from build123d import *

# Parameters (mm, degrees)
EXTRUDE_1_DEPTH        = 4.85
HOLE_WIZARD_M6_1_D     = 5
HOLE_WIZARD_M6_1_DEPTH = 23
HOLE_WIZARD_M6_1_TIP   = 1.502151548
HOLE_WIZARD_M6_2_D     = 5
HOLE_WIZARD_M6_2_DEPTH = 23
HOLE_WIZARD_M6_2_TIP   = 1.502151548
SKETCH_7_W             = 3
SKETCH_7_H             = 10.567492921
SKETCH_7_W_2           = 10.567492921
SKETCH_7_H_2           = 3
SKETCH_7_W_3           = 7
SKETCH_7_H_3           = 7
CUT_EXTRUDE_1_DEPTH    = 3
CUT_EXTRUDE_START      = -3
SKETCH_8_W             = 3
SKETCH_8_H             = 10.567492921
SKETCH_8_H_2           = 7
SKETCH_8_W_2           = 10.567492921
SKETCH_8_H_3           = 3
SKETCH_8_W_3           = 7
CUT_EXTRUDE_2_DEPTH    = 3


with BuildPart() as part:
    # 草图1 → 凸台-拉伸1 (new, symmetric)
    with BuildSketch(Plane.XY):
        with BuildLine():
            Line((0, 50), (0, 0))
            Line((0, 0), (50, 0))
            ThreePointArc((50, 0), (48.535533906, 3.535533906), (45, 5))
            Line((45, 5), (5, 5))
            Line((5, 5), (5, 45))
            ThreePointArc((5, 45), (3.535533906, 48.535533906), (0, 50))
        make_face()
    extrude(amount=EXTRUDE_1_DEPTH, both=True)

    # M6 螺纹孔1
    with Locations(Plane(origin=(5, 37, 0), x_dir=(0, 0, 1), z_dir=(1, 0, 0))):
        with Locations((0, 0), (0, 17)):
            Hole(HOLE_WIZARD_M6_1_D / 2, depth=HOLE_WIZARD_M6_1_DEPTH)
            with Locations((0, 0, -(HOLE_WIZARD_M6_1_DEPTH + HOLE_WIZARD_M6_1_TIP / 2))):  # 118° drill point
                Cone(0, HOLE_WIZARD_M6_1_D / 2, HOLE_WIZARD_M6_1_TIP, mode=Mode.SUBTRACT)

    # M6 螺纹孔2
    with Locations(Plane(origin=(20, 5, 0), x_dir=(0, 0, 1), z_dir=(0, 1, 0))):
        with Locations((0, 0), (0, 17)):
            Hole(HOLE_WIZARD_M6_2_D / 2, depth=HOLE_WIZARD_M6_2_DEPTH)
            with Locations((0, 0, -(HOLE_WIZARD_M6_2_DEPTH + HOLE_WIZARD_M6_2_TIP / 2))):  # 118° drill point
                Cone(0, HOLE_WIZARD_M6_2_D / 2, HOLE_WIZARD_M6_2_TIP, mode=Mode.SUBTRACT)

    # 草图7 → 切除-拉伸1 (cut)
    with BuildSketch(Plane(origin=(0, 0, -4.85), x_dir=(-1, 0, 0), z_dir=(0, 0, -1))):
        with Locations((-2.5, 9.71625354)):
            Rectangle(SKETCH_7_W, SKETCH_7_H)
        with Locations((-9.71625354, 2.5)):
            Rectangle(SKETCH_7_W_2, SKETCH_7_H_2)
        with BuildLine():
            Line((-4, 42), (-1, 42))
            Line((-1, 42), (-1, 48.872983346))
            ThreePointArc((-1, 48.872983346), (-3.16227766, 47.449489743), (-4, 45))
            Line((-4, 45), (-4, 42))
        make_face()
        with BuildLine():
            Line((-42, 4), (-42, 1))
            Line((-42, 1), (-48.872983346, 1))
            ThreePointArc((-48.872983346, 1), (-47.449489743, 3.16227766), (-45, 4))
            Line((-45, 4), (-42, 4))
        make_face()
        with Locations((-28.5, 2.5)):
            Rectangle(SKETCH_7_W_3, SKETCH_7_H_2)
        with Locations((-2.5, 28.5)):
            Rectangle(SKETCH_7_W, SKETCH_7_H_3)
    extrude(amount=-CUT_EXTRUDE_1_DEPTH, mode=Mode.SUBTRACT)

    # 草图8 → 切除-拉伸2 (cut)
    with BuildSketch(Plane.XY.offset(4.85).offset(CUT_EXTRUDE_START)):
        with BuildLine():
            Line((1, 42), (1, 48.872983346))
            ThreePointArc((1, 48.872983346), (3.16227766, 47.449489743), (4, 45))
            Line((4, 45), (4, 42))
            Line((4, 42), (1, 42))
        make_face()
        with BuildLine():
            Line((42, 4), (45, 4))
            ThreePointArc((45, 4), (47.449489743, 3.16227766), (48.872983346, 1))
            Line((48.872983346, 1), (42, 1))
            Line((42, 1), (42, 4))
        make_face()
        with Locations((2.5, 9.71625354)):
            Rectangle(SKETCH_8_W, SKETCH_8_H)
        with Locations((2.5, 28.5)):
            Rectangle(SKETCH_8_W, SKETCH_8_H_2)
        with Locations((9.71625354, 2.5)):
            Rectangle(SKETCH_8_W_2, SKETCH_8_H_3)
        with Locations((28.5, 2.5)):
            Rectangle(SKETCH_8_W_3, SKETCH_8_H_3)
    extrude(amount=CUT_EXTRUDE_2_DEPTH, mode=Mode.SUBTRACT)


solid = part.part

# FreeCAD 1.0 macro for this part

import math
import FreeCAD as App
import Part
import Sketcher

V = App.Vector

doc = App.newDocument("Part")
params = doc.addObject("Spreadsheet::Sheet", "Params")
for row, (alias, value) in enumerate([
    ("sketch1_radius", "5 mm"),
    ("sketch1_width", "50 mm"),
    ("pad1_length", "9.7 mm"),
    ("sketch2_diameter", "5 mm"),
    ("hole_diameter", "5 mm"),
    ("hole_depth", "23 mm"),
    ("sketch3_diameter", "5 mm"),
    ("hole2_diameter", "5 mm"),
    ("hole2_depth", "23 mm"),
    ("sketch4_radius", "4 mm"),
    ("sketch4_width", "3 mm"),
    ("sketch4_width2", "7 mm"),
    ("pocket1_length", "3 mm"),
    ("sketch5_radius", "4 mm"),
    ("sketch5_width", "3 mm"),
    ("sketch5_width2", "7 mm"),
    ("pocket2_length", "3 mm"),
], start=1):
    params.set(f"A{row}", alias)
    params.set(f"B{row}", "=" + value)
    params.setAlias(f"B{row}", alias)

body = doc.addObject("PartDesign::Body", "Body")

# Sketch on XY plane
sketch1 = body.newObject("Sketcher::SketchObject", "Sketch")
sketch1.AttachmentSupport = (doc.getObject("XY_Plane"), [""])
sketch1.MapMode = "FlatFace"
sketch1.addGeometry(Part.LineSegment(V(0, 50, 0), V(0, 0, 0)), False)
sketch1.addGeometry(Part.LineSegment(V(0, 0, 0), V(50, 0, 0)), False)
sketch1.addGeometry(Part.ArcOfCircle(Part.Circle(V(45, 0, 0), V(0, 0, 1), 5), math.radians(0), math.radians(90)), False)
sketch1.addGeometry(Part.LineSegment(V(45, 5, 0), V(5, 5, 0)), False)
sketch1.addGeometry(Part.LineSegment(V(5, 5, 0), V(5, 45, 0)), False)
sketch1.addGeometry(Part.ArcOfCircle(Part.Circle(V(0, 45, 0), V(0, 0, 1), 5), math.radians(0), math.radians(90)), False)
sketch1.addConstraint(Sketcher.Constraint("Coincident", 0, 2, 1, 1))
sketch1.addConstraint(Sketcher.Constraint("Coincident", 1, 2, 2, 1))
sketch1.addConstraint(Sketcher.Constraint("Tangent", 2, 2, 3, 1))
sketch1.addConstraint(Sketcher.Constraint("Coincident", 3, 2, 4, 1))
sketch1.addConstraint(Sketcher.Constraint("Tangent", 4, 2, 5, 1))
sketch1.addConstraint(Sketcher.Constraint("Coincident", 5, 2, 0, 1))
sketch1.addConstraint(Sketcher.Constraint("Vertical", 0))
sketch1.addConstraint(Sketcher.Constraint("Horizontal", 1))
sketch1.addConstraint(Sketcher.Constraint("Horizontal", 3))
sketch1.addConstraint(Sketcher.Constraint("Vertical", 4))
sketch1.addConstraint(Sketcher.Constraint("Coincident", 0, 2, -1, 1))
sketch1.addConstraint(Sketcher.Constraint("Equal", 2, 5))
sketch1.addConstraint(Sketcher.Constraint("PointOnObject", 2, 3, -1))
sketch1.addConstraint(Sketcher.Constraint("PointOnObject", 5, 3, -2))
sketch1.addConstraint(Sketcher.Constraint("Equal", 1, 0))
sketch1.addConstraint(Sketcher.Constraint("Radius", 2, 5.0))
sketch1.addConstraint(Sketcher.Constraint("DistanceX", 1, 1, 1, 2, 50.0))
sketch1.setExpression("Constraints[15]", "Params.sketch1_radius")
sketch1.setExpression("Constraints[16]", "Params.sketch1_width")
pad1 = body.newObject("PartDesign::Pad", "Pad")
pad1.Profile = sketch1
pad1.setExpression("Length", "Params.pad1_length")
pad1.Midplane = True

# Sketch on YZ plane
sketch2 = body.newObject("Sketcher::SketchObject", "Sketch001")
sketch2.AttachmentSupport = (doc.getObject("YZ_Plane"), [""])
sketch2.MapMode = "FlatFace"
sketch2.AttachmentOffset = App.Placement(V(0, 0, 5), App.Rotation())
sketch2.addGeometry(Part.Circle(V(37, 0, 0), V(0, 0, 1), 2.5), False)
sketch2.addGeometry(Part.Circle(V(20, 0, 0), V(0, 0, 1), 2.5), False)
sketch2.addConstraint(Sketcher.Constraint("Equal", 0, 1))
sketch2.addConstraint(Sketcher.Constraint("PointOnObject", 0, 3, -1))
sketch2.addConstraint(Sketcher.Constraint("PointOnObject", 1, 3, -1))
sketch2.addConstraint(Sketcher.Constraint("Diameter", 0, 5.0))
sketch2.addConstraint(Sketcher.Constraint("DistanceX", -1, 1, 0, 3, 37.0))
sketch2.addConstraint(Sketcher.Constraint("DistanceX", -1, 1, 1, 3, 20.0))
sketch2.setExpression("Constraints[3]", "Params.sketch2_diameter")
doc.recompute()
hole = body.newObject("PartDesign::Hole", "Hole")
hole.Profile = sketch2
hole.ThreadType = "None"
hole.setExpression("Diameter", "Params.hole_diameter")
hole.DepthType = "Dimension"
hole.setExpression("Depth", "Params.hole_depth")
hole.DrillPoint = "Angled"
hole.DrillPointAngle = 118

# Sketch on XZ plane
sketch3 = body.newObject("Sketcher::SketchObject", "Sketch002")
sketch3.AttachmentSupport = (doc.getObject("XZ_Plane"), [""])
sketch3.MapMode = "FlatFace"
sketch3.AttachmentOffset = App.Placement(V(0, 0, -5), App.Rotation())
sketch3.addGeometry(Part.Circle(V(20, 0, 0), V(0, 0, 1), 2.5), False)
sketch3.addGeometry(Part.Circle(V(37, 0, 0), V(0, 0, 1), 2.5), False)
sketch3.addConstraint(Sketcher.Constraint("Equal", 0, 1))
sketch3.addConstraint(Sketcher.Constraint("PointOnObject", 0, 3, -1))
sketch3.addConstraint(Sketcher.Constraint("PointOnObject", 1, 3, -1))
sketch3.addConstraint(Sketcher.Constraint("Diameter", 0, 5.0))
sketch3.addConstraint(Sketcher.Constraint("DistanceX", -1, 1, 0, 3, 20.0))
sketch3.addConstraint(Sketcher.Constraint("DistanceX", -1, 1, 1, 3, 37.0))
sketch3.setExpression("Constraints[3]", "Params.sketch3_diameter")
doc.recompute()
hole2 = body.newObject("PartDesign::Hole", "Hole001")
hole2.Profile = sketch3
hole2.ThreadType = "None"
hole2.setExpression("Diameter", "Params.hole2_diameter")
hole2.DepthType = "Dimension"
hole2.setExpression("Depth", "Params.hole2_depth")
hole2.DrillPoint = "Angled"
hole2.DrillPointAngle = 118
hole2.Reversed = True

# Sketch on XY plane
sketch4 = body.newObject("Sketcher::SketchObject", "Sketch003")
sketch4.AttachmentSupport = (doc.getObject("XY_Plane"), [""])
sketch4.MapMode = "FlatFace"
sketch4.AttachmentOffset = App.Placement(V(0, 0, -4.85), App.Rotation())
sketch4.addGeometry(Part.LineSegment(V(4, 15, 0), V(4, 4.432507, 0)), False)
sketch4.addGeometry(Part.LineSegment(V(4, 4.432507, 0), V(1, 4.432507, 0)), False)
sketch4.addGeometry(Part.LineSegment(V(1, 4.432507, 0), V(1, 15, 0)), False)
sketch4.addGeometry(Part.LineSegment(V(1, 15, 0), V(4, 15, 0)), False)
sketch4.addGeometry(Part.LineSegment(V(15, 4, 0), V(15, 1, 0)), False)
sketch4.addGeometry(Part.LineSegment(V(15, 1, 0), V(4.432507, 1, 0)), False)
sketch4.addGeometry(Part.LineSegment(V(4.432507, 1, 0), V(4.432507, 4, 0)), False)
sketch4.addGeometry(Part.LineSegment(V(4.432507, 4, 0), V(15, 4, 0)), False)
sketch4.addGeometry(Part.LineSegment(V(4, 42, 0), V(1, 42, 0)), False)
sketch4.addGeometry(Part.LineSegment(V(1, 42, 0), V(1, 48.872983, 0)), False)
sketch4.addGeometry(Part.ArcOfCircle(Part.Circle(V(0, 45, 0), V(0, 0, 1), 4), math.radians(0), math.radians(75.522488)), False)
sketch4.addGeometry(Part.LineSegment(V(4, 45, 0), V(4, 42, 0)), False)
sketch4.addGeometry(Part.LineSegment(V(42, 1, 0), V(42, 4, 0)), False)
sketch4.addGeometry(Part.LineSegment(V(42, 4, 0), V(45, 4, 0)), False)
sketch4.addGeometry(Part.ArcOfCircle(Part.Circle(V(45, 0, 0), V(0, 0, 1), 4), math.radians(14.477512), math.radians(90)), False)
sketch4.addGeometry(Part.LineSegment(V(48.872983, 1, 0), V(42, 1, 0)), False)
sketch4.addGeometry(Part.LineSegment(V(32, 4, 0), V(32, 1, 0)), False)
sketch4.addGeometry(Part.LineSegment(V(32, 1, 0), V(25, 1, 0)), False)
sketch4.addGeometry(Part.LineSegment(V(25, 1, 0), V(25, 4, 0)), False)
sketch4.addGeometry(Part.LineSegment(V(25, 4, 0), V(32, 4, 0)), False)
sketch4.addGeometry(Part.LineSegment(V(4, 32, 0), V(4, 25, 0)), False)
sketch4.addGeometry(Part.LineSegment(V(4, 25, 0), V(1, 25, 0)), False)
sketch4.addGeometry(Part.LineSegment(V(1, 25, 0), V(1, 32, 0)), False)
sketch4.addGeometry(Part.LineSegment(V(1, 32, 0), V(4, 32, 0)), False)
sketch4.addConstraint(Sketcher.Constraint("Coincident", 0, 2, 1, 1))
sketch4.addConstraint(Sketcher.Constraint("Coincident", 1, 2, 2, 1))
sketch4.addConstraint(Sketcher.Constraint("Coincident", 2, 2, 3, 1))
sketch4.addConstraint(Sketcher.Constraint("Coincident", 3, 2, 0, 1))
sketch4.addConstraint(Sketcher.Constraint("Coincident", 4, 2, 5, 1))
sketch4.addConstraint(Sketcher.Constraint("Coincident", 5, 2, 6, 1))
sketch4.addConstraint(Sketcher.Constraint("Coincident", 6, 2, 7, 1))
sketch4.addConstraint(Sketcher.Constraint("Coincident", 7, 2, 4, 1))
sketch4.addConstraint(Sketcher.Constraint("Coincident", 8, 2, 9, 1))
sketch4.addConstraint(Sketcher.Constraint("Coincident", 9, 2, 10, 2))
sketch4.addConstraint(Sketcher.Constraint("Tangent", 10, 1, 11, 1))
sketch4.addConstraint(Sketcher.Constraint("Coincident", 11, 2, 8, 1))
sketch4.addConstraint(Sketcher.Constraint("Coincident", 12, 2, 13, 1))
sketch4.addConstraint(Sketcher.Constraint("Tangent", 13, 2, 14, 2))
sketch4.addConstraint(Sketcher.Constraint("Coincident", 14, 1, 15, 1))
sketch4.addConstraint(Sketcher.Constraint("Coincident", 15, 2, 12, 1))
sketch4.addConstraint(Sketcher.Constraint("Coincident", 16, 2, 17, 1))
sketch4.addConstraint(Sketcher.Constraint("Coincident", 17, 2, 18, 1))
sketch4.addConstraint(Sketcher.Constraint("Coincident", 18, 2, 19, 1))
sketch4.addConstraint(Sketcher.Constraint("Coincident", 19, 2, 16, 1))
sketch4.addConstraint(Sketcher.Constraint("Coincident", 20, 2, 21, 1))
sketch4.addConstraint(Sketcher.Constraint("Coincident", 21, 2, 22, 1))
sketch4.addConstraint(Sketcher.Constraint("Coincident", 22, 2, 23, 1))
sketch4.addConstraint(Sketcher.Constraint("Coincident", 23, 2, 20, 1))
sketch4.addConstraint(Sketcher.Constraint("Vertical", 0))
sketch4.addConstraint(Sketcher.Constraint("Horizontal", 1))
sketch4.addConstraint(Sketcher.Constraint("Vertical", 2))
sketch4.addConstraint(Sketcher.Constraint("Horizontal", 3))
sketch4.addConstraint(Sketcher.Constraint("Vertical", 4))
sketch4.addConstraint(Sketcher.Constraint("Horizontal", 5))
sketch4.addConstraint(Sketcher.Constraint("Vertical", 6))
sketch4.addConstraint(Sketcher.Constraint("Horizontal", 7))
sketch4.addConstraint(Sketcher.Constraint("Horizontal", 8))
sketch4.addConstraint(Sketcher.Constraint("Vertical", 9))
sketch4.addConstraint(Sketcher.Constraint("Vertical", 11))
sketch4.addConstraint(Sketcher.Constraint("Vertical", 12))
sketch4.addConstraint(Sketcher.Constraint("Horizontal", 13))
sketch4.addConstraint(Sketcher.Constraint("Horizontal", 15))
sketch4.addConstraint(Sketcher.Constraint("Vertical", 16))
sketch4.addConstraint(Sketcher.Constraint("Horizontal", 17))
sketch4.addConstraint(Sketcher.Constraint("Vertical", 18))
sketch4.addConstraint(Sketcher.Constraint("Horizontal", 19))
sketch4.addConstraint(Sketcher.Constraint("Vertical", 20))
sketch4.addConstraint(Sketcher.Constraint("Horizontal", 21))
sketch4.addConstraint(Sketcher.Constraint("Vertical", 22))
sketch4.addConstraint(Sketcher.Constraint("Horizontal", 23))
sketch4.addConstraint(Sketcher.Constraint("Equal", 10, 14))
sketch4.addConstraint(Sketcher.Constraint("PointOnObject", 10, 3, -2))
sketch4.addConstraint(Sketcher.Constraint("PointOnObject", 14, 3, -1))
sketch4.addConstraint(Sketcher.Constraint("Horizontal", 7, 2, 12, 2))
sketch4.addConstraint(Sketcher.Constraint("Horizontal", 5, 2, 14, 1))
sketch4.addConstraint(Sketcher.Constraint("Horizontal", 15, 2, 16, 2))
sketch4.addConstraint(Sketcher.Constraint("Horizontal", 13, 2, 18, 2))
sketch4.addConstraint(Sketcher.Constraint("Vertical", 2, 2, 8, 2))
sketch4.addConstraint(Sketcher.Constraint("Vertical", 3, 2, 10, 1))
sketch4.addConstraint(Sketcher.Constraint("Vertical", 11, 2, 20, 2))
sketch4.addConstraint(Sketcher.Constraint("Vertical", 9, 2, 21, 2))
sketch4.addConstraint(Sketcher.Constraint("Equal", 8, 13))
sketch4.addConstraint(Sketcher.Constraint("Equal", 7, 0))
sketch4.addConstraint(Sketcher.Constraint("Equal", 23, 4))
sketch4.addConstraint(Sketcher.Constraint("Equal", 15, 9))
sketch4.addConstraint(Sketcher.Constraint("Equal", 19, 20))
sketch4.addConstraint(Sketcher.Constraint("Radius", 10, 4.0))
sketch4.addConstraint(Sketcher.Constraint("DistanceX", 1, 2, 1, 1, 3.0))
sketch4.addConstraint(Sketcher.Constraint("DistanceX", 17, 2, 17, 1, 7.0))
sketch4.addConstraint(Sketcher.Constraint("DistanceY", -1, 1, 10, 3, 45.0))
sketch4.addConstraint(Sketcher.Constraint("DistanceX", -1, 1, 14, 3, 45.0))
sketch4.addConstraint(Sketcher.Constraint("DistanceY", -1, 1, 2, 2, 15.0))
sketch4.addConstraint(Sketcher.Constraint("DistanceX", -1, 1, 4, 2, 15.0))
sketch4.addConstraint(Sketcher.Constraint("DistanceX", -1, 1, 16, 2, 32.0))
sketch4.addConstraint(Sketcher.Constraint("DistanceY", -1, 1, 20, 2, 25.0))
sketch4.addConstraint(Sketcher.Constraint("DistanceX", 5, 2, 5, 1, 10.567493))
sketch4.setExpression("Constraints[62]", "Params.sketch4_radius")
sketch4.setExpression("Constraints[63]", "Params.sketch4_width")
sketch4.setExpression("Constraints[64]", "Params.sketch4_width2")
pocket1 = body.newObject("PartDesign::Pocket", "Pocket")
pocket1.Profile = sketch4
pocket1.setExpression("Length", "Params.pocket1_length")
pocket1.Reversed = True

# Sketch on XY plane
sketch5 = body.newObject("Sketcher::SketchObject", "Sketch004")
sketch5.AttachmentSupport = (doc.getObject("XY_Plane"), [""])
sketch5.MapMode = "FlatFace"
sketch5.AttachmentOffset = App.Placement(V(0, 0, 1.85), App.Rotation())
sketch5.addGeometry(Part.LineSegment(V(1, 48.872983, 0), V(1, 42, 0)), False)
sketch5.addGeometry(Part.LineSegment(V(1, 42, 0), V(4, 42, 0)), False)
sketch5.addGeometry(Part.LineSegment(V(4, 42, 0), V(4, 45, 0)), False)
sketch5.addGeometry(Part.ArcOfCircle(Part.Circle(V(0, 45, 0), V(0, 0, 1), 4), math.radians(0), math.radians(75.522488)), False)
sketch5.addGeometry(Part.LineSegment(V(45, 4, 0), V(42, 4, 0)), False)
sketch5.addGeometry(Part.LineSegment(V(42, 4, 0), V(42, 1, 0)), False)
sketch5.addGeometry(Part.LineSegment(V(42, 1, 0), V(48.872983, 1, 0)), False)
sketch5.addGeometry(Part.ArcOfCircle(Part.Circle(V(45, 0, 0), V(0, 0, 1), 4), math.radians(14.477512), math.radians(90)), False)
sketch5.addGeometry(Part.LineSegment(V(1, 15, 0), V(1, 4.432507, 0)), False)
sketch5.addGeometry(Part.LineSegment(V(1, 4.432507, 0), V(4, 4.432507, 0)), False)
sketch5.addGeometry(Part.LineSegment(V(4, 4.432507, 0), V(4, 15, 0)), False)
sketch5.addGeometry(Part.LineSegment(V(4, 15, 0), V(1, 15, 0)), False)
sketch5.addGeometry(Part.LineSegment(V(1, 32, 0), V(1, 25, 0)), False)
sketch5.addGeometry(Part.LineSegment(V(1, 25, 0), V(4, 25, 0)), False)
sketch5.addGeometry(Part.LineSegment(V(4, 25, 0), V(4, 32, 0)), False)
sketch5.addGeometry(Part.LineSegment(V(4, 32, 0), V(1, 32, 0)), False)
sketch5.addGeometry(Part.LineSegment(V(4.432507, 4, 0), V(4.432507, 1, 0)), False)
sketch5.addGeometry(Part.LineSegment(V(4.432507, 1, 0), V(15, 1, 0)), False)
sketch5.addGeometry(Part.LineSegment(V(15, 1, 0), V(15, 4, 0)), False)
sketch5.addGeometry(Part.LineSegment(V(15, 4, 0), V(4.432507, 4, 0)), False)
sketch5.addGeometry(Part.LineSegment(V(25, 4, 0), V(25, 1, 0)), False)
sketch5.addGeometry(Part.LineSegment(V(25, 1, 0), V(32, 1, 0)), False)
sketch5.addGeometry(Part.LineSegment(V(32, 1, 0), V(32, 4, 0)), False)
sketch5.addGeometry(Part.LineSegment(V(32, 4, 0), V(25, 4, 0)), False)
sketch5.addConstraint(Sketcher.Constraint("Coincident", 0, 2, 1, 1))
sketch5.addConstraint(Sketcher.Constraint("Coincident", 1, 2, 2, 1))
sketch5.addConstraint(Sketcher.Constraint("Tangent", 2, 2, 3, 1))
sketch5.addConstraint(Sketcher.Constraint("Coincident", 3, 2, 0, 1))
sketch5.addConstraint(Sketcher.Constraint("Coincident", 4, 2, 5, 1))
sketch5.addConstraint(Sketcher.Constraint("Coincident", 5, 2, 6, 1))
sketch5.addConstraint(Sketcher.Constraint("Coincident", 6, 2, 7, 1))
sketch5.addConstraint(Sketcher.Constraint("Tangent", 7, 2, 4, 1))
sketch5.addConstraint(Sketcher.Constraint("Coincident", 8, 2, 9, 1))
sketch5.addConstraint(Sketcher.Constraint("Coincident", 9, 2, 10, 1))
sketch5.addConstraint(Sketcher.Constraint("Coincident", 10, 2, 11, 1))
sketch5.addConstraint(Sketcher.Constraint("Coincident", 11, 2, 8, 1))
sketch5.addConstraint(Sketcher.Constraint("Coincident", 12, 2, 13, 1))
sketch5.addConstraint(Sketcher.Constraint("Coincident", 13, 2, 14, 1))
sketch5.addConstraint(Sketcher.Constraint("Coincident", 14, 2, 15, 1))
sketch5.addConstraint(Sketcher.Constraint("Coincident", 15, 2, 12, 1))
sketch5.addConstraint(Sketcher.Constraint("Coincident", 16, 2, 17, 1))
sketch5.addConstraint(Sketcher.Constraint("Coincident", 17, 2, 18, 1))
sketch5.addConstraint(Sketcher.Constraint("Coincident", 18, 2, 19, 1))
sketch5.addConstraint(Sketcher.Constraint("Coincident", 19, 2, 16, 1))
sketch5.addConstraint(Sketcher.Constraint("Coincident", 20, 2, 21, 1))
sketch5.addConstraint(Sketcher.Constraint("Coincident", 21, 2, 22, 1))
sketch5.addConstraint(Sketcher.Constraint("Coincident", 22, 2, 23, 1))
sketch5.addConstraint(Sketcher.Constraint("Coincident", 23, 2, 20, 1))
sketch5.addConstraint(Sketcher.Constraint("Vertical", 0))
sketch5.addConstraint(Sketcher.Constraint("Horizontal", 1))
sketch5.addConstraint(Sketcher.Constraint("Vertical", 2))
sketch5.addConstraint(Sketcher.Constraint("Horizontal", 4))
sketch5.addConstraint(Sketcher.Constraint("Vertical", 5))
sketch5.addConstraint(Sketcher.Constraint("Horizontal", 6))
sketch5.addConstraint(Sketcher.Constraint("Vertical", 8))
sketch5.addConstraint(Sketcher.Constraint("Horizontal", 9))
sketch5.addConstraint(Sketcher.Constraint("Vertical", 10))
sketch5.addConstraint(Sketcher.Constraint("Horizontal", 11))
sketch5.addConstraint(Sketcher.Constraint("Vertical", 12))
sketch5.addConstraint(Sketcher.Constraint("Horizontal", 13))
sketch5.addConstraint(Sketcher.Constraint("Vertical", 14))
sketch5.addConstraint(Sketcher.Constraint("Horizontal", 15))
sketch5.addConstraint(Sketcher.Constraint("Vertical", 16))
sketch5.addConstraint(Sketcher.Constraint("Horizontal", 17))
sketch5.addConstraint(Sketcher.Constraint("Vertical", 18))
sketch5.addConstraint(Sketcher.Constraint("Horizontal", 19))
sketch5.addConstraint(Sketcher.Constraint("Vertical", 20))
sketch5.addConstraint(Sketcher.Constraint("Horizontal", 21))
sketch5.addConstraint(Sketcher.Constraint("Vertical", 22))
sketch5.addConstraint(Sketcher.Constraint("Horizontal", 23))
sketch5.addConstraint(Sketcher.Constraint("Equal", 3, 7))
sketch5.addConstraint(Sketcher.Constraint("PointOnObject", 3, 3, -2))
sketch5.addConstraint(Sketcher.Constraint("PointOnObject", 7, 3, -1))
sketch5.addConstraint(Sketcher.Constraint("Horizontal", 6, 2, 16, 2))
sketch5.addConstraint(Sketcher.Constraint("Horizontal", 7, 2, 18, 2))
sketch5.addConstraint(Sketcher.Constraint("Horizontal", 17, 2, 20, 2))
sketch5.addConstraint(Sketcher.Constraint("Horizontal", 19, 2, 22, 2))
sketch5.addConstraint(Sketcher.Constraint("Vertical", 3, 2, 8, 2))
sketch5.addConstraint(Sketcher.Constraint("Vertical", 2, 2, 9, 2))
sketch5.addConstraint(Sketcher.Constraint("Vertical", 11, 2, 12, 2))
sketch5.addConstraint(Sketcher.Constraint("Vertical", 10, 2, 13, 2))
sketch5.addConstraint(Sketcher.Constraint("Equal", 1, 4))
sketch5.addConstraint(Sketcher.Constraint("Equal", 6, 0))
sketch5.addConstraint(Sketcher.Constraint("Equal", 15, 2))
sketch5.addConstraint(Sketcher.Constraint("Equal", 19, 8))
sketch5.addConstraint(Sketcher.Constraint("Equal", 23, 12))
sketch5.addConstraint(Sketcher.Constraint("Radius", 3, 4.0))
sketch5.addConstraint(Sketcher.Constraint("DistanceX", 1, 1, 1, 2, 3.0))
sketch5.addConstraint(Sketcher.Constraint("DistanceX", 21, 1, 21, 2, 7.0))
sketch5.addConstraint(Sketcher.Constraint("DistanceY", -1, 1, 3, 3, 45.0))
sketch5.addConstraint(Sketcher.Constraint("DistanceX", -1, 1, 7, 3, 45.0))
sketch5.addConstraint(Sketcher.Constraint("DistanceY", -1, 1, 10, 2, 15.0))
sketch5.addConstraint(Sketcher.Constraint("DistanceY", -1, 1, 12, 2, 25.0))
sketch5.addConstraint(Sketcher.Constraint("DistanceX", -1, 1, 17, 2, 15.0))
sketch5.addConstraint(Sketcher.Constraint("DistanceX", -1, 1, 20, 2, 25.0))
sketch5.addConstraint(Sketcher.Constraint("DistanceX", 17, 1, 17, 2, 10.567493))
sketch5.setExpression("Constraints[62]", "Params.sketch5_radius")
sketch5.setExpression("Constraints[63]", "Params.sketch5_width")
sketch5.setExpression("Constraints[64]", "Params.sketch5_width2")
pocket2 = body.newObject("PartDesign::Pocket", "Pocket001")
pocket2.Profile = sketch5
pocket2.setExpression("Length", "Params.pocket2_length")
pocket2.Reversed = True

doc.recompute()
